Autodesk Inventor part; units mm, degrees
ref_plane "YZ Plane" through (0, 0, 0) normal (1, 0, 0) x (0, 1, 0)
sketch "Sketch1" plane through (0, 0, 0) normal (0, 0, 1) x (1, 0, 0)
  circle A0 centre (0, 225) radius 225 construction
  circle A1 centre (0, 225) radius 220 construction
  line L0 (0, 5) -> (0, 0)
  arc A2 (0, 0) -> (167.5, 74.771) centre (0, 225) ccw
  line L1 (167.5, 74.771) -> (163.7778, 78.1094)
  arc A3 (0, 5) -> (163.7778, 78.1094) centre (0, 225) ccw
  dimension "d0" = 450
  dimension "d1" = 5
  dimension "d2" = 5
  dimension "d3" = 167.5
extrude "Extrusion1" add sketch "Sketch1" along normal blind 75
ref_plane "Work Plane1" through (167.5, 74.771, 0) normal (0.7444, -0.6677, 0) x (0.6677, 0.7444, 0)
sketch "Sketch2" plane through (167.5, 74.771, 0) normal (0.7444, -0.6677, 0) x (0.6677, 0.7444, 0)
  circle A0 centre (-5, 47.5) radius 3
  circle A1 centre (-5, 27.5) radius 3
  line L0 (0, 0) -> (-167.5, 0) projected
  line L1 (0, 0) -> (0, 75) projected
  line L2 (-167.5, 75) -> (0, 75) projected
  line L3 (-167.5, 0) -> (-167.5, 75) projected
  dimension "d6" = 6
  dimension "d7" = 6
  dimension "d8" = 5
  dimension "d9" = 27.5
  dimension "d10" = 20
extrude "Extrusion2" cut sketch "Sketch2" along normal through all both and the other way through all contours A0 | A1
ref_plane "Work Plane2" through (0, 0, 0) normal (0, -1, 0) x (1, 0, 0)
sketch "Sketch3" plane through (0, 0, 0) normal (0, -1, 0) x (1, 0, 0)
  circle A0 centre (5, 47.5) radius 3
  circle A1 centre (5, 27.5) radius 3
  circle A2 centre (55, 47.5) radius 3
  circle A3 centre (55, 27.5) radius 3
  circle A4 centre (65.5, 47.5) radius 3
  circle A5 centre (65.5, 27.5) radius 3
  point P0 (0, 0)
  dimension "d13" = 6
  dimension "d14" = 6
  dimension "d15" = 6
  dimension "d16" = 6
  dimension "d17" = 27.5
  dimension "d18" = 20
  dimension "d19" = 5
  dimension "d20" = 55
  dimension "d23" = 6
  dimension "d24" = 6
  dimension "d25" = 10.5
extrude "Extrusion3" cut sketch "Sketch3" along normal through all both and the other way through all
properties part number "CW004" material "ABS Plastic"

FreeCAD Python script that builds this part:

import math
import FreeCAD as App
import Part
import Sketcher

doc = App.newDocument("Part")
params = doc.addObject("Spreadsheet::Sheet", "Params")
for row, (alias, value) in enumerate([
    ("sketch1_radius", "225 mm"),
    ("sketch1_height", "5 mm"),
    ("pad1_length", "75 mm"),
    ("sketch2_diameter", "6 mm"),
    ("sketch3_diameter", "6 mm"),
], start=1):
    params.set(f"A{row}", alias)
    params.set(f"B{row}", "=" + value)
    params.setAlias(f"B{row}", alias)

body = doc.addObject("PartDesign::Body", "Body")

sketch1 = body.newObject("Sketcher::SketchObject", "Sketch")
sketch1.AttachmentSupport = (doc.getObject("XY_Plane"), [""])
sketch1.MapMode = "FlatFace"
sketch1.addGeometry(Part.ArcOfCircle(Part.Circle(App.Vector(0, 225, 0), App.Vector(0, 0, 1), 220), math.radians(-90), math.radians(-42)), False)
sketch1.addGeometry(Part.LineSegment(App.Vector(0, 5, 0), App.Vector(0, 0, 0)), False)
sketch1.addGeometry(Part.ArcOfCircle(Part.Circle(App.Vector(0, 225, 0), App.Vector(0, 0, 1), 225), math.radians(-90), math.radians(-42)), False)
sketch1.addGeometry(Part.LineSegment(App.Vector(167.5, 74.8, 0), App.Vector(163.8, 78.1, 0)), False)
sketch1.addConstraint(Sketcher.Constraint("Coincident", 0, 1, 1, 1))
sketch1.addConstraint(Sketcher.Constraint("Coincident", 1, 2, 2, 1))
sketch1.addConstraint(Sketcher.Constraint("Coincident", 2, 2, 3, 1))
sketch1.addConstraint(Sketcher.Constraint("Coincident", 3, 2, 0, 2))
sketch1.addConstraint(Sketcher.Constraint("Vertical", 1))
sketch1.addConstraint(Sketcher.Constraint("Coincident", 1, 2, -1, 1))
sketch1.addConstraint(Sketcher.Constraint("Coincident", 2, 3, 0, 3))
sketch1.addConstraint(Sketcher.Constraint("PointOnObject", 0, 3, -2))
sketch1.addConstraint(Sketcher.Constraint("Radius", 2, 225.0))
sketch1.addConstraint(Sketcher.Constraint("DistanceY", 1, 2, 1, 1, 5.0))
sketch1.addConstraint(Sketcher.Constraint("DistanceX", -1, 1, 2, 2, 167.5))
sketch1.addConstraint(Sketcher.Constraint("DistanceX", -1, 1, 3, 2, 163.7778))
sketch1.setExpression("Constraints[8]", "Params.sketch1_radius")
sketch1.setExpression("Constraints[9]", "Params.sketch1_height")
pad1 = body.newObject("PartDesign::Pad", "Pad")
pad1.Profile = sketch1
pad1.setExpression("Length", "Params.pad1_length")

sketch2 = body.newObject("Sketcher::SketchObject", "Sketch001")
sketch2.Placement = App.Placement(App.Vector(167.5, 74.771, 0), App.Rotation(App.Vector(0.667715141, 0.74441688, 0), App.Vector(0, 0, 1.000000001), App.Vector(0.74441688, -0.667715141, 0), "ZXY"))
sketch2.addGeometry(Part.Circle(App.Vector(-5, 47.5, 0), App.Vector(0, 0, 1), 3), False)
sketch2.addGeometry(Part.Circle(App.Vector(-5, 27.5, 0), App.Vector(0, 0, 1), 3), False)
sketch2.addConstraint(Sketcher.Constraint("Equal", 0, 1))
sketch2.addConstraint(Sketcher.Constraint("Vertical", 0, 3, 1, 3))
sketch2.addConstraint(Sketcher.Constraint("Diameter", 0, 6.0))
sketch2.addConstraint(Sketcher.Constraint("DistanceX", 0, 3, -1, 1, 5.0))
sketch2.addConstraint(Sketcher.Constraint("DistanceY", 1, 3, 0, 3, 20.0))
sketch2.addConstraint(Sketcher.Constraint("DistanceY", -1, 1, 1, 3, 27.5))
sketch2.setExpression("Constraints[2]", "Params.sketch2_diameter")
pocket1 = body.newObject("PartDesign::Pocket", "Pocket")
pocket1.Profile = sketch2
pocket1.Type = "ThroughAll"
pocket1.Midplane = True

sketch3 = body.newObject("Sketcher::SketchObject", "Sketch002")
sketch3.AttachmentSupport = (doc.getObject("XZ_Plane"), [""])
sketch3.MapMode = "FlatFace"
sketch3.addGeometry(Part.Circle(App.Vector(5, 47.5, 0), App.Vector(0, 0, 1), 3), False)
sketch3.addGeometry(Part.Circle(App.Vector(5, 27.5, 0), App.Vector(0, 0, 1), 3), False)
sketch3.addGeometry(Part.Circle(App.Vector(55, 47.5, 0), App.Vector(0, 0, 1), 3), False)
sketch3.addGeometry(Part.Circle(App.Vector(55, 27.5, 0), App.Vector(0, 0, 1), 3), False)
sketch3.addGeometry(Part.Circle(App.Vector(65.5, 47.5, 0), App.Vector(0, 0, 1), 3), False)
sketch3.addGeometry(Part.Circle(App.Vector(65.5, 27.5, 0), App.Vector(0, 0, 1), 3), False)
sketch3.addConstraint(Sketcher.Constraint("Equal", 0, 1))
sketch3.addConstraint(Sketcher.Constraint("Equal", 1, 2))
sketch3.addConstraint(Sketcher.Constraint("Equal", 2, 3))
sketch3.addConstraint(Sketcher.Constraint("Equal", 3, 4))
sketch3.addConstraint(Sketcher.Constraint("Equal", 4, 5))
sketch3.addConstraint(Sketcher.Constraint("Horizontal", 0, 3, 2, 3))
sketch3.addConstraint(Sketcher.Constraint("Horizontal", 1, 3, 3, 3))
sketch3.addConstraint(Sketcher.Constraint("Horizontal", 2, 3, 4, 3))
sketch3.addConstraint(Sketcher.Constraint("Horizontal", 3, 3, 5, 3))
sketch3.addConstraint(Sketcher.Constraint("Vertical", 0, 3, 1, 3))
sketch3.addConstraint(Sketcher.Constraint("Vertical", 2, 3, 3, 3))
sketch3.addConstraint(Sketcher.Constraint("Vertical", 4, 3, 5, 3))
sketch3.addConstraint(Sketcher.Constraint("Diameter", 0, 6.0))
sketch3.addConstraint(Sketcher.Constraint("DistanceX", -1, 1, 0, 3, 5.0))
sketch3.addConstraint(Sketcher.Constraint("DistanceX", -1, 1, 2, 3, 55.0))
sketch3.addConstraint(Sketcher.Constraint("DistanceY", 1, 3, 0, 3, 20.0))
sketch3.addConstraint(Sketcher.Constraint("DistanceY", -1, 1, 1, 3, 27.5))
sketch3.addConstraint(Sketcher.Constraint("DistanceX", 2, 3, 4, 3, 10.5))
sketch3.setExpression("Constraints[12]", "Params.sketch3_diameter")
pocket2 = body.newObject("PartDesign::Pocket", "Pocket001")
pocket2.Profile = sketch3
pocket2.Type = "ThroughAll"
pocket2.Midplane = True

doc.recompute()
